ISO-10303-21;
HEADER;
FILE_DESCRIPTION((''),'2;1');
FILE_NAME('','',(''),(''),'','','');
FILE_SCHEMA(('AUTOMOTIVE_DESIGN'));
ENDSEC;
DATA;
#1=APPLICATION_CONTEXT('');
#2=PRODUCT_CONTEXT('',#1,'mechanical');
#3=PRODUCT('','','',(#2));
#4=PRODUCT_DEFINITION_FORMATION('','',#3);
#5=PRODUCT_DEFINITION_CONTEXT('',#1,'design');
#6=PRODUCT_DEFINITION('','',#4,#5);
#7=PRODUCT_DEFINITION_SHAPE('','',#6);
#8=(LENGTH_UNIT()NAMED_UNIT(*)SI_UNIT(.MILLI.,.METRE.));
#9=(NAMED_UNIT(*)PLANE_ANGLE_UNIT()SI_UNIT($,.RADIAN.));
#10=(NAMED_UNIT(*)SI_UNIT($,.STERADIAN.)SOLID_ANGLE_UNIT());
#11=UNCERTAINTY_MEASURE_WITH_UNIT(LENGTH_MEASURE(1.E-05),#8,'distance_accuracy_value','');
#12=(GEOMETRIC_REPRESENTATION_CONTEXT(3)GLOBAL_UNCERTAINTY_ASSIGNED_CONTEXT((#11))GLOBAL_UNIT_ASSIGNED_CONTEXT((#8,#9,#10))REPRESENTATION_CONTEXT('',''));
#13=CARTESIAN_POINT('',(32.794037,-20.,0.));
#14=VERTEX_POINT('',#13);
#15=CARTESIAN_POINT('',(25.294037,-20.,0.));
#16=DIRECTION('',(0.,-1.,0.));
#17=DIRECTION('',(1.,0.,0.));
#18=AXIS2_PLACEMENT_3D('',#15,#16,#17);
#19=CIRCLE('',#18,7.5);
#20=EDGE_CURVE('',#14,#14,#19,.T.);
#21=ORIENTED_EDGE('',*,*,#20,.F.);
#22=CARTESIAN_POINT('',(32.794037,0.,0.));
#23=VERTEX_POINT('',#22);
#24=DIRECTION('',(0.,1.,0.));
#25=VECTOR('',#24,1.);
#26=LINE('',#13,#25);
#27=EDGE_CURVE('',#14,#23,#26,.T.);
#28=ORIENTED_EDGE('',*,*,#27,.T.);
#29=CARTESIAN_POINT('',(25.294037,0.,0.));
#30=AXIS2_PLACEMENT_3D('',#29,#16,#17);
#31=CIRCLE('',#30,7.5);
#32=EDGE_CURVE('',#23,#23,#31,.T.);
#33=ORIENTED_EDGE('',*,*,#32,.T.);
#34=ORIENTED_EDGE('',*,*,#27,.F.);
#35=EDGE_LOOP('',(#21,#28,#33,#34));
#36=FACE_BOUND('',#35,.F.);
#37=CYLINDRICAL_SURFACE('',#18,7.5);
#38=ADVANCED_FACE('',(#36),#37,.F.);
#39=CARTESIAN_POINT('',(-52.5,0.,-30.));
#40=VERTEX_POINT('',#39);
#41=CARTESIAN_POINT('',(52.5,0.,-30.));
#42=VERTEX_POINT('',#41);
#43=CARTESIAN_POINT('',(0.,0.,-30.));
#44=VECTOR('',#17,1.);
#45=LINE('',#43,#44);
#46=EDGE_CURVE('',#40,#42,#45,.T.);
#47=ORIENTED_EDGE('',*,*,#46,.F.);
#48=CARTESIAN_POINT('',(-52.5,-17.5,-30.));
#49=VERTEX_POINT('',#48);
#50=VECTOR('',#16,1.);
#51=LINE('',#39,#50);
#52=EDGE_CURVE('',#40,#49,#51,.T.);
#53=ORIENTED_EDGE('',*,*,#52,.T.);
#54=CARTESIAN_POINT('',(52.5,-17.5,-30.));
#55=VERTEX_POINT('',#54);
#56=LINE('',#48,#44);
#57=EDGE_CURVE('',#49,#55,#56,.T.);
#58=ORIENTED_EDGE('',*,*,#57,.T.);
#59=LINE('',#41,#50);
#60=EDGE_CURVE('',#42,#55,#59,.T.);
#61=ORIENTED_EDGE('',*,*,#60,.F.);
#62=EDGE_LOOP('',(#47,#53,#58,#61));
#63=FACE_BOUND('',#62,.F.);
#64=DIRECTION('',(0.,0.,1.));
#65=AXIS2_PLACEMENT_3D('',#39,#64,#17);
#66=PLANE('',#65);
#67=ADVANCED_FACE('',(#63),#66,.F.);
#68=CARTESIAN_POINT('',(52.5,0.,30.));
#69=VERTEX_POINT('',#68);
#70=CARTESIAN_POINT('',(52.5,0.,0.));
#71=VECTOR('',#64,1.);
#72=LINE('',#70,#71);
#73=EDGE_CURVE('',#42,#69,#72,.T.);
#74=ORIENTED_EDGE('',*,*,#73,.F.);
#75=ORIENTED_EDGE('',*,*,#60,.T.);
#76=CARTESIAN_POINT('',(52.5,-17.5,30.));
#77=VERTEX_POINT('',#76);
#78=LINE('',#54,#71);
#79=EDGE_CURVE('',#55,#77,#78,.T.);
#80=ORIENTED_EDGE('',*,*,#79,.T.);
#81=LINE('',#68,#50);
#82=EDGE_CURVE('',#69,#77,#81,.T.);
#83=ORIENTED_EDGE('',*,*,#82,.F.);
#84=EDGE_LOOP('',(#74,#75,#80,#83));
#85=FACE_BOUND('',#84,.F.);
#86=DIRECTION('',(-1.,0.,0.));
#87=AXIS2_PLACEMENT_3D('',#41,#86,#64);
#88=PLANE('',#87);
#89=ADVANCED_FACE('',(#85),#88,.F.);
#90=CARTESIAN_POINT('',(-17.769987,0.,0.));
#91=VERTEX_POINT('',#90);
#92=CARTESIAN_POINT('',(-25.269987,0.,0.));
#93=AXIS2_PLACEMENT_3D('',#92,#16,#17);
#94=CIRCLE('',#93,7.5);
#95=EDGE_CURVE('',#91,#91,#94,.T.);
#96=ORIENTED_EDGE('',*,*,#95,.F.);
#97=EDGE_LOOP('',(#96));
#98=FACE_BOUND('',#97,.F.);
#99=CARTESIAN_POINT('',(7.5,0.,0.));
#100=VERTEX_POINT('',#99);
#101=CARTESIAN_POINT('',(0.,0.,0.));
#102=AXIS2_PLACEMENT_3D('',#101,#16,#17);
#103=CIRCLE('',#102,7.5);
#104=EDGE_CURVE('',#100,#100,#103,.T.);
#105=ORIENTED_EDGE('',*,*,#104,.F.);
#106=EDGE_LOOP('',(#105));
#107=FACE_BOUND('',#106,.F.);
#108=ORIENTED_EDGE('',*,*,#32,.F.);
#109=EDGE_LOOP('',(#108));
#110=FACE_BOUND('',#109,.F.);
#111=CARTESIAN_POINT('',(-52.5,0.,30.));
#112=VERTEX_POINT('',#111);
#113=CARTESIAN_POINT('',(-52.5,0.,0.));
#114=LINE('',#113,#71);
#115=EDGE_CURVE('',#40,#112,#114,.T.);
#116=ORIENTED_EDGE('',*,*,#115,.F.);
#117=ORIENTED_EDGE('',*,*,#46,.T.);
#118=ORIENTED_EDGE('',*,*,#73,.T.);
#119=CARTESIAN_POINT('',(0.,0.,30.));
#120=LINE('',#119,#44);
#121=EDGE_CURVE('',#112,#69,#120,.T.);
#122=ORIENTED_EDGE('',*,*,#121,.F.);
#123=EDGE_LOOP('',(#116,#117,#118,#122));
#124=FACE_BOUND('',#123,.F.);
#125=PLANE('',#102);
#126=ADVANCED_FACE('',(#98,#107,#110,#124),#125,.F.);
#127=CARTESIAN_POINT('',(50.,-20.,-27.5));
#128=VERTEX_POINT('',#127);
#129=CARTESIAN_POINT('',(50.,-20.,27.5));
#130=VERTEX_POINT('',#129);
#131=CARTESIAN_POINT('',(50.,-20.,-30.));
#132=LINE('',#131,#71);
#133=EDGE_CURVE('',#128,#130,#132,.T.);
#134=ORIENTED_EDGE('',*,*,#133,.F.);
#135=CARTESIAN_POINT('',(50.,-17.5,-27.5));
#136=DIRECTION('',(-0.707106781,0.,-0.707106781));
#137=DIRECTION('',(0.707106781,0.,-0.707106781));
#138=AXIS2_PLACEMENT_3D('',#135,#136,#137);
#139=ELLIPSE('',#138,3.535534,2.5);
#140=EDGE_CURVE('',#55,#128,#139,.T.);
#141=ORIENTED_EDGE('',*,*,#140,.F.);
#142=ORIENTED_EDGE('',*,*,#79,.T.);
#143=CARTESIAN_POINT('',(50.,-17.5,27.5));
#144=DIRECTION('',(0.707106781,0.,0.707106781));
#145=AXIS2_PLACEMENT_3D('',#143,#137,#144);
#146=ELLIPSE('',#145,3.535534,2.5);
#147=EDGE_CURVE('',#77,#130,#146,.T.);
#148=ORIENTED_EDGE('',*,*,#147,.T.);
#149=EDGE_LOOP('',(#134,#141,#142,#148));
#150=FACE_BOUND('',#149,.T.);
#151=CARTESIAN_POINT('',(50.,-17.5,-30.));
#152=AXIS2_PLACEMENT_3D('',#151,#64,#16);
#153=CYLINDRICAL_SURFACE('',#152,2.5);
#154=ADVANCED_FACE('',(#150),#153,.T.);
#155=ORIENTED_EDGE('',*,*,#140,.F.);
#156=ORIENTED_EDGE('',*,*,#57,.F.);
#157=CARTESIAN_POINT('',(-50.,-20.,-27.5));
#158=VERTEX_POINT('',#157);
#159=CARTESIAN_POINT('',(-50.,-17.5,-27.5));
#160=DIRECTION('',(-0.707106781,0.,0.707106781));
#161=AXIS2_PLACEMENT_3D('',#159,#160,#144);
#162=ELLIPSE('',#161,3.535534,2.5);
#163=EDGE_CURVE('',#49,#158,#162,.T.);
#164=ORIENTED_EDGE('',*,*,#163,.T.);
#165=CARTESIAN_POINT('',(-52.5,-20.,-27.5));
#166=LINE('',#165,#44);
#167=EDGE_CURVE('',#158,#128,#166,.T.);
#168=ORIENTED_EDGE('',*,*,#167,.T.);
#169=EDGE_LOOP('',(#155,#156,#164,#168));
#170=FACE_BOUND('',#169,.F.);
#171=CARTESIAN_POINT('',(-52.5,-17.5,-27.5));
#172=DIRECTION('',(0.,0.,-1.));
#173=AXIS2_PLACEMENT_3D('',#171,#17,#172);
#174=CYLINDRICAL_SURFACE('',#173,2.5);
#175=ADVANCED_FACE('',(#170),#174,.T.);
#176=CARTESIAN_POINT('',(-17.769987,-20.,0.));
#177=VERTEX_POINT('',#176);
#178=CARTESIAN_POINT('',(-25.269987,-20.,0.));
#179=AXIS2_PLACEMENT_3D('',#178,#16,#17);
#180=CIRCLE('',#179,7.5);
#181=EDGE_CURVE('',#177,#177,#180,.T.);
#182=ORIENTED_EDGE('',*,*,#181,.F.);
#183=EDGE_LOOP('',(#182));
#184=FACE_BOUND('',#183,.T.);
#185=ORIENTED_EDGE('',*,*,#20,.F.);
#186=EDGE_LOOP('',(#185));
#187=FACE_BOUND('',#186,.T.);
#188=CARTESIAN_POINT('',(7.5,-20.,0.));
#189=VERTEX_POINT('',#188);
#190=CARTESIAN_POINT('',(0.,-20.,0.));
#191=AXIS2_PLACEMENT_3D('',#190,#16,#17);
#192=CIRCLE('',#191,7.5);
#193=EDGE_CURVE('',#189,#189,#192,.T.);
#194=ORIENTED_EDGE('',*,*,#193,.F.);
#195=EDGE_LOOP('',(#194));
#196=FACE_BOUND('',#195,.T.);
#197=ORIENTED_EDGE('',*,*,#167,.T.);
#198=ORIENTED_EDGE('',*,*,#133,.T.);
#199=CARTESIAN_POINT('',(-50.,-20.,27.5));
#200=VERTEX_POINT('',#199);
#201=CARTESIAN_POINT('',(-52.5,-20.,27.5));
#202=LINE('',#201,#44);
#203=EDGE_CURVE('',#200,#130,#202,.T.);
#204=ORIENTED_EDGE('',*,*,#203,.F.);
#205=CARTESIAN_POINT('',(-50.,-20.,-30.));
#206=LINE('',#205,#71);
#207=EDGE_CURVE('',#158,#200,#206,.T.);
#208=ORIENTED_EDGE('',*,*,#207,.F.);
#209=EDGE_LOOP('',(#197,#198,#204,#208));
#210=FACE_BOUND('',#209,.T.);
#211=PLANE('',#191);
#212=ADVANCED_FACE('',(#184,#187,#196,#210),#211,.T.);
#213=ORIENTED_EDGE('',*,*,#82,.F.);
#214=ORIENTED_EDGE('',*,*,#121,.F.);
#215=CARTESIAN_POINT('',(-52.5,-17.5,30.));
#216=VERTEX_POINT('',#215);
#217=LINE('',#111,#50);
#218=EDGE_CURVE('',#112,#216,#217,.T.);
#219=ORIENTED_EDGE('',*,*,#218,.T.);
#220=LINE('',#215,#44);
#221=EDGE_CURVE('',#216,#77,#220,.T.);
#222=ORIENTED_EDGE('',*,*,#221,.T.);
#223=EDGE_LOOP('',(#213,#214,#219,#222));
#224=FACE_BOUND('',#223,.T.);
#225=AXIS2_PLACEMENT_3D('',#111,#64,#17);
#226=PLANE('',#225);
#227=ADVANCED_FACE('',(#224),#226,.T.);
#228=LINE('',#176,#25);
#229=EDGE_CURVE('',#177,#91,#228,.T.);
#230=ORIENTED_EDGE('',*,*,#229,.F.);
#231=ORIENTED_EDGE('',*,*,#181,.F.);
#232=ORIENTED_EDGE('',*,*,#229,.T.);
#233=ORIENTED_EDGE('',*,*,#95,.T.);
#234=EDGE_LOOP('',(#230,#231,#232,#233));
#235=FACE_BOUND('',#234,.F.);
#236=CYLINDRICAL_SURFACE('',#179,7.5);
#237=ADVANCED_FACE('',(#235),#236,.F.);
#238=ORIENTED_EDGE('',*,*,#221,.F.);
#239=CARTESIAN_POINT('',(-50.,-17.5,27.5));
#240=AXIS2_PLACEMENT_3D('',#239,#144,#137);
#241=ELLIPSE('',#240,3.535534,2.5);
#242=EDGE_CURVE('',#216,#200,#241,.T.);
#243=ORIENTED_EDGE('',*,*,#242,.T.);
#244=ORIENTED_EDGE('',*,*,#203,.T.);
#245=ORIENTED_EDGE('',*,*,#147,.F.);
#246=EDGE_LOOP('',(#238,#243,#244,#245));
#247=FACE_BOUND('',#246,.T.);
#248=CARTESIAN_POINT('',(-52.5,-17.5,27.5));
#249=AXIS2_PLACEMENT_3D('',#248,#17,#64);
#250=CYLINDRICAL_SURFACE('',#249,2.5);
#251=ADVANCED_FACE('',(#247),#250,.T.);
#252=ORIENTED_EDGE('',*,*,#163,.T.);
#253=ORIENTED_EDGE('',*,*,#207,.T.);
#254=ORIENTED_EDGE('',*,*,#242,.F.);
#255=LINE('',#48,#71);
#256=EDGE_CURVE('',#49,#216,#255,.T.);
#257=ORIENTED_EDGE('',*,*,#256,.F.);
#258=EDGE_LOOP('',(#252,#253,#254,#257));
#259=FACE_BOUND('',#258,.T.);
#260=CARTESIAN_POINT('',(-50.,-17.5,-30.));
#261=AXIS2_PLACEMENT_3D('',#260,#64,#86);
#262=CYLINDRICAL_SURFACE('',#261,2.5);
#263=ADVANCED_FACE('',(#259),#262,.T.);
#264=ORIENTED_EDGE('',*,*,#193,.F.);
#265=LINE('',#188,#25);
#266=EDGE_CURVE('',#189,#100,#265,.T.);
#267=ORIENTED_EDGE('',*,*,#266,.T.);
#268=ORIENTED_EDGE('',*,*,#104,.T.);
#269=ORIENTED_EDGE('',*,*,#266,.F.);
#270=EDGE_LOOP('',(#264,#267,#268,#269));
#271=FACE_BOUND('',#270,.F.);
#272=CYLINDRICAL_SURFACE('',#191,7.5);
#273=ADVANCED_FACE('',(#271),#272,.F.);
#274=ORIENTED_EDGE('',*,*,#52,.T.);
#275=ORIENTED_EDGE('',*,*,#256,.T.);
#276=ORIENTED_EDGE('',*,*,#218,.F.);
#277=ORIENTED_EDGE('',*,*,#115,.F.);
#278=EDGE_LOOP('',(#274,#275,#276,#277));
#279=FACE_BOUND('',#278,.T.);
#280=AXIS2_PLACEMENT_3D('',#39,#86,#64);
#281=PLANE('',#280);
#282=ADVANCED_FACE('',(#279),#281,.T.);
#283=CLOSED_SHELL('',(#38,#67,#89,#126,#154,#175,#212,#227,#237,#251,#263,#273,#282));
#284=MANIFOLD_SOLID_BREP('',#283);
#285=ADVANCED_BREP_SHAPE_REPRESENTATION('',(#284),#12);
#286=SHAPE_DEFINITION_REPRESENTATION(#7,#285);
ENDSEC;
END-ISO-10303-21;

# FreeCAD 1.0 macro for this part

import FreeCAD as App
import Part
import Sketcher

V = App.Vector


def edges_at(feature, points):
    """Names of the edges that pass closest to the given points."""
    edges = feature.Shape.Edges
    near = lambda p: min(range(len(edges)), key=lambda i: edges[i].distToShape(Part.Vertex(*p))[0])
    return sorted({f"Edge{near(p) + 1}" for p in points})

doc = App.newDocument("Part")
body = doc.addObject("PartDesign::Body", "Body")

# Sketch on XZ plane
sketch1 = body.newObject("Sketcher::SketchObject", "Sketch")
sketch1.AttachmentSupport = (doc.getObject("XZ_Plane"), [""])
sketch1.MapMode = "FlatFace"
sketch1.addGeometry(Part.LineSegment(V(-52.5, 30, 0), V(-52.5, -30, 0)), False)
sketch1.addGeometry(Part.LineSegment(V(-52.5, -30, 0), V(52.5, -30, 0)), False)
sketch1.addGeometry(Part.LineSegment(V(52.5, -30, 0), V(52.5, 30, 0)), False)
sketch1.addGeometry(Part.LineSegment(V(52.5, 30, 0), V(-52.5, 30, 0)), False)
sketch1.addConstraint(Sketcher.Constraint("Coincident", 0, 2, 1, 1))
sketch1.addConstraint(Sketcher.Constraint("Coincident", 1, 2, 2, 1))
sketch1.addConstraint(Sketcher.Constraint("Coincident", 2, 2, 3, 1))
sketch1.addConstraint(Sketcher.Constraint("Coincident", 3, 2, 0, 1))
sketch1.addConstraint(Sketcher.Constraint("Vertical", 0))
sketch1.addConstraint(Sketcher.Constraint("Horizontal", 1))
sketch1.addConstraint(Sketcher.Constraint("Vertical", 2))
sketch1.addConstraint(Sketcher.Constraint("Horizontal", 3))
sketch1.addConstraint(Sketcher.Constraint("Symmetric", 0, 2, 2, 2, -1, 1))
sketch1.addConstraint(Sketcher.Constraint("DistanceX", 1, 1, 1, 2, 105.0))
sketch1.addConstraint(Sketcher.Constraint("DistanceY", 0, 2, 0, 1, 60.0))
pad1 = body.newObject("PartDesign::Pad", "Pad")
pad1.Profile = sketch1
pad1.Length = 20

# Sketch on XZ plane
sketch2 = body.newObject("Sketcher::SketchObject", "Sketch001")
sketch2.AttachmentSupport = (doc.getObject("XZ_Plane"), [""])
sketch2.MapMode = "FlatFace"
sketch2.AttachmentOffset = App.Placement(V(0, 0, 20), App.Rotation())
sketch2.addGeometry(Part.Circle(V(0, 0, 0), V(0, 0, 1), 7.5), False)
sketch2.addConstraint(Sketcher.Constraint("Coincident", 0, 3, -1, 1))
sketch2.addConstraint(Sketcher.Constraint("Diameter", 0, 15.0))
pocket1 = body.newObject("PartDesign::Pocket", "Pocket")
pocket1.Profile = sketch2
pocket1.Length = 20

# Sketch on XZ plane
sketch3 = body.newObject("Sketcher::SketchObject", "Sketch002")
sketch3.AttachmentSupport = (doc.getObject("XZ_Plane"), [""])
sketch3.MapMode = "FlatFace"
sketch3.AttachmentOffset = App.Placement(V(0, 0, 20), App.Rotation())
sketch3.addGeometry(Part.Circle(V(0, 0, 0), V(0, 0, 1), 7.5), False)
sketch3.addGeometry(Part.Circle(V(-25.269987, 0, 0), V(0, 0, 1), 7.5), False)
sketch3.addGeometry(Part.Circle(V(25.294037, 0, 0), V(0, 0, 1), 7.5), False)
sketch3.addConstraint(Sketcher.Constraint("Coincident", 0, 3, -1, 1))
sketch3.addConstraint(Sketcher.Constraint("Equal", 0, 1))
sketch3.addConstraint(Sketcher.Constraint("Equal", 1, 2))
sketch3.addConstraint(Sketcher.Constraint("PointOnObject", 1, 3, -1))
sketch3.addConstraint(Sketcher.Constraint("PointOnObject", 2, 3, -1))
sketch3.addConstraint(Sketcher.Constraint("Diameter", 0, 15.0))
sketch3.addConstraint(Sketcher.Constraint("DistanceX", 1, 3, -1, 1, 25.269987))
sketch3.addConstraint(Sketcher.Constraint("DistanceX", -1, 1, 2, 3, 25.294037))
pocket2 = body.newObject("PartDesign::Pocket", "Pocket001")
pocket2.Profile = sketch3
pocket2.Length = 20
doc.recompute()

fillet = body.newObject("PartDesign::Fillet", "Fillet")
fillet.Base = (pocket2, edges_at(pocket2, [
    (0, -20, 30),
    (-52.5, -20, 0),
    (0, -20, -30),
    (52.5, -20, 0),
]))
fillet.Radius = 2.5

doc.recompute()
